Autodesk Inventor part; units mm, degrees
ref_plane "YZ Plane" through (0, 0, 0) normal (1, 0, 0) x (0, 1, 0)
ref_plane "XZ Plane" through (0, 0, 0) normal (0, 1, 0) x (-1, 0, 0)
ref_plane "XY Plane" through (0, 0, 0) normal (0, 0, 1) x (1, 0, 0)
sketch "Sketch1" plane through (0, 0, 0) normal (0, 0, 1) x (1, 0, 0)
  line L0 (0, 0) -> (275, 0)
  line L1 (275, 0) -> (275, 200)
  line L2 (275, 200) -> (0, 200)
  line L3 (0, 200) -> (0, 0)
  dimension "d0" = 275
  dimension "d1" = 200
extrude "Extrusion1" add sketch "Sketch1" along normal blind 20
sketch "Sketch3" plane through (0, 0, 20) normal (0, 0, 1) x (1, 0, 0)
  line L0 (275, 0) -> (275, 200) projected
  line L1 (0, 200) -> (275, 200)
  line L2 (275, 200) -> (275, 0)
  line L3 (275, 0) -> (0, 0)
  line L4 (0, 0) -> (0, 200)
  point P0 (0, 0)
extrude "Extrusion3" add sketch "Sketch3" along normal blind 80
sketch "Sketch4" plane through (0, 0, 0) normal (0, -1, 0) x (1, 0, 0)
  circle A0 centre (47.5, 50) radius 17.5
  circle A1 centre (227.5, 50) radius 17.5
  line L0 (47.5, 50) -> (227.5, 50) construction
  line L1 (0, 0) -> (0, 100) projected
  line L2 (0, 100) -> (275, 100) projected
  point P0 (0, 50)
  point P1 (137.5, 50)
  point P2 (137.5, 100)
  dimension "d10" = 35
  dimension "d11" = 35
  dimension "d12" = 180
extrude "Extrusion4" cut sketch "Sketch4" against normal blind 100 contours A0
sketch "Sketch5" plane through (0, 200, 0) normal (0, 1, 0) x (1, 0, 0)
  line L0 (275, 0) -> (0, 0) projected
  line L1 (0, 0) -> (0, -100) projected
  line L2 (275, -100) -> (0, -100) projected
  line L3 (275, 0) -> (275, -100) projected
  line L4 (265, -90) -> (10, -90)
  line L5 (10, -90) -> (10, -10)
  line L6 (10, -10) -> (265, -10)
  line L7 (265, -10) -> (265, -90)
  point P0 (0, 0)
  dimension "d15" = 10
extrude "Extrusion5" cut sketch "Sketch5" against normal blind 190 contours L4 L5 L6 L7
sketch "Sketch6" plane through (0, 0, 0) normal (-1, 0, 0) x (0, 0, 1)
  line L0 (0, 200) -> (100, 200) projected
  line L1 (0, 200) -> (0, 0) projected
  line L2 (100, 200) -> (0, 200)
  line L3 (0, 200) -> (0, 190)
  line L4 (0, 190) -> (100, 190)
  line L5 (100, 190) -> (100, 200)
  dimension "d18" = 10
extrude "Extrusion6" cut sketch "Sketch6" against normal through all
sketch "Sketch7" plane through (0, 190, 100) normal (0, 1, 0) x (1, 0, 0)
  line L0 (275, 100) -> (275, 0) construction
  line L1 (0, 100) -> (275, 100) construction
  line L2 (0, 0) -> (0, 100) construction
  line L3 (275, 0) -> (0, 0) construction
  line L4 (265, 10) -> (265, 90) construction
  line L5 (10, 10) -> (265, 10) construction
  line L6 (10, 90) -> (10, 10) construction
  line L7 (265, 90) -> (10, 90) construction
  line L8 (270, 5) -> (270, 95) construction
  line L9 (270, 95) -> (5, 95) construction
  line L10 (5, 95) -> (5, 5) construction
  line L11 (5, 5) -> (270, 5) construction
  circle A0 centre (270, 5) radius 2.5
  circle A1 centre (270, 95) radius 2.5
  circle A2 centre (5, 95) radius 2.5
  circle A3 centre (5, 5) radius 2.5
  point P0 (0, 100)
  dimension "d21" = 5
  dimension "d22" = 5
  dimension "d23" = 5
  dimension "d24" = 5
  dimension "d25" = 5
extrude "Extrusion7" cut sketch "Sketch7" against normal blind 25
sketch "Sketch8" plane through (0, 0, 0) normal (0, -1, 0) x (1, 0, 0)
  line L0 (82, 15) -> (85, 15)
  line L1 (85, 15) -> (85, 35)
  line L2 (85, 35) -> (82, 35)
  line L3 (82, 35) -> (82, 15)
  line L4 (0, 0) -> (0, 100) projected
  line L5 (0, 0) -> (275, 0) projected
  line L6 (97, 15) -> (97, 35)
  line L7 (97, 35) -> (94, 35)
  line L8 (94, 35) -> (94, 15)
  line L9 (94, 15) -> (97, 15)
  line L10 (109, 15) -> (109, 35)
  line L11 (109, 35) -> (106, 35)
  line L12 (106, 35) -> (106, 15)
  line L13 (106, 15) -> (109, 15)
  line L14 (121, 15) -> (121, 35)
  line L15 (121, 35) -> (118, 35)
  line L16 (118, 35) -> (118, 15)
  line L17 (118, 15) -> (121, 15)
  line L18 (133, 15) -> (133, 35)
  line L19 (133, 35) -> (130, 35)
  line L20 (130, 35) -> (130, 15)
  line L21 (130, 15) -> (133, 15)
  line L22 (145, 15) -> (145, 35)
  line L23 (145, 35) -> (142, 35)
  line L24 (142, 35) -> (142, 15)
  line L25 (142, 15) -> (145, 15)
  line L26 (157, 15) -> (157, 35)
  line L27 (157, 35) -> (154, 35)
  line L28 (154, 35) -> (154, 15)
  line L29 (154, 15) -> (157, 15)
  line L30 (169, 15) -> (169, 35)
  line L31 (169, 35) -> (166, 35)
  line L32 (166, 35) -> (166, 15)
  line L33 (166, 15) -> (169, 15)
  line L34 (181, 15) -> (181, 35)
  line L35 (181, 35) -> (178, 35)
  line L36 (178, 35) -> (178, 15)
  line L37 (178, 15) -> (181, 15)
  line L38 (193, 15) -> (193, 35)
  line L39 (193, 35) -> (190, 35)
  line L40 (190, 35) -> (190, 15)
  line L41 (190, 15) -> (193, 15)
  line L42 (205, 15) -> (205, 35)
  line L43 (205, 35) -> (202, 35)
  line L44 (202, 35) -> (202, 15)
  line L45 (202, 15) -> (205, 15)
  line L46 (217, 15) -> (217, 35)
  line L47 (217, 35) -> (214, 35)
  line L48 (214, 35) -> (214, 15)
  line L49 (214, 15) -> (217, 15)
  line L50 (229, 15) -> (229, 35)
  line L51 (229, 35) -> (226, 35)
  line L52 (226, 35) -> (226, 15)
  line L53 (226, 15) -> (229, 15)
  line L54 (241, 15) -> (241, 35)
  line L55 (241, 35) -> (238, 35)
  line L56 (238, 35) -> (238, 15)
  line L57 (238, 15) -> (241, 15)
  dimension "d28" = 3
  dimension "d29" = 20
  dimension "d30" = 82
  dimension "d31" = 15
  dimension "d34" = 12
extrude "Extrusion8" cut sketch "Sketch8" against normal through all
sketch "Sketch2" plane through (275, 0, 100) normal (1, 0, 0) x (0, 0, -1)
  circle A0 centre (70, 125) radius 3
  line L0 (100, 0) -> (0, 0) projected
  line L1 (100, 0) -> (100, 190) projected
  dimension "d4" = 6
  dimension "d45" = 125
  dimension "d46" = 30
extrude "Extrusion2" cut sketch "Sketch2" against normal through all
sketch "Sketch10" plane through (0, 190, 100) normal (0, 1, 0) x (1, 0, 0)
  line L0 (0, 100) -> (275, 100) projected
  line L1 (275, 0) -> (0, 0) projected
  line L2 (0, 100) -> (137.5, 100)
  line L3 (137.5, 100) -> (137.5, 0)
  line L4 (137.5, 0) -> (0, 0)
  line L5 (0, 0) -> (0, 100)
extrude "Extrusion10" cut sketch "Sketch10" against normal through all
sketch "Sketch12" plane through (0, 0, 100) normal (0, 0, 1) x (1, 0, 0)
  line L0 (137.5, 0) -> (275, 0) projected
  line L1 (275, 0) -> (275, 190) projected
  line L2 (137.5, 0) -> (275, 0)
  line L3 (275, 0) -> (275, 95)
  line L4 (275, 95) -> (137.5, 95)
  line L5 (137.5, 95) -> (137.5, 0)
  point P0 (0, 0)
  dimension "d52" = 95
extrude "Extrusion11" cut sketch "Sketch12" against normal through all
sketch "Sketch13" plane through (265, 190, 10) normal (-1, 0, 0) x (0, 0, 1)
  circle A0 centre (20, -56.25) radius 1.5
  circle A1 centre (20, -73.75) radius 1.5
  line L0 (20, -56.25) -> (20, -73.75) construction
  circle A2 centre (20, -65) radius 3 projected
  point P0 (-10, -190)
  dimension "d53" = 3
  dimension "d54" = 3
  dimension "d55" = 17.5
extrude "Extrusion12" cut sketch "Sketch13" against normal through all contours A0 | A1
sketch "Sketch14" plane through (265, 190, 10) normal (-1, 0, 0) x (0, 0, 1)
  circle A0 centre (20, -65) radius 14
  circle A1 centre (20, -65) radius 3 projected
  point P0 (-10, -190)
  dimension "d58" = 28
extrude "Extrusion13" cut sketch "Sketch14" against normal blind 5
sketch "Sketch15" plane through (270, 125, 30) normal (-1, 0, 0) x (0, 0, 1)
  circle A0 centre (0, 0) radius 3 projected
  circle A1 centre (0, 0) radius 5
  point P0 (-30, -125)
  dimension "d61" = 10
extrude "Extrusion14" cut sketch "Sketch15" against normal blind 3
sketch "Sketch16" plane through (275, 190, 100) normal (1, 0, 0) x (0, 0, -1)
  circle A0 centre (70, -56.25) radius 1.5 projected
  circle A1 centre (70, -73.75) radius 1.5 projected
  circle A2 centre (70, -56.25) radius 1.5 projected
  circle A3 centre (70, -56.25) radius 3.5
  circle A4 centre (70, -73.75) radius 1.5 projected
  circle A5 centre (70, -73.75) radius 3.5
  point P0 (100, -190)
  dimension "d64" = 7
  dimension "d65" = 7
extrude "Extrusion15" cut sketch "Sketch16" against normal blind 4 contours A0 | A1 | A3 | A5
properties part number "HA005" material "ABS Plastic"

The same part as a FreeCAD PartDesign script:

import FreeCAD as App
import Part
import Sketcher

V = App.Vector

doc = App.newDocument("Part")
body = doc.addObject("PartDesign::Body", "Body")

# Sketch on XY plane
sketch1 = body.newObject("Sketcher::SketchObject", "Sketch")
sketch1.AttachmentSupport = (doc.getObject("XY_Plane"), [""])
sketch1.MapMode = "FlatFace"
sketch1.addGeometry(Part.LineSegment(V(0, 200, 0), V(0, 0, 0)), False)
sketch1.addGeometry(Part.LineSegment(V(0, 0, 0), V(275, 0, 0)), False)
sketch1.addGeometry(Part.LineSegment(V(275, 0, 0), V(275, 200, 0)), False)
sketch1.addGeometry(Part.LineSegment(V(275, 200, 0), V(0, 200, 0)), False)
sketch1.addConstraint(Sketcher.Constraint("Coincident", 0, 2, 1, 1))
sketch1.addConstraint(Sketcher.Constraint("Coincident", 1, 2, 2, 1))
sketch1.addConstraint(Sketcher.Constraint("Coincident", 2, 2, 3, 1))
sketch1.addConstraint(Sketcher.Constraint("Coincident", 3, 2, 0, 1))
sketch1.addConstraint(Sketcher.Constraint("Vertical", 0))
sketch1.addConstraint(Sketcher.Constraint("Horizontal", 1))
sketch1.addConstraint(Sketcher.Constraint("Vertical", 2))
sketch1.addConstraint(Sketcher.Constraint("Horizontal", 3))
sketch1.addConstraint(Sketcher.Constraint("Coincident", 0, 2, -1, 1))
sketch1.addConstraint(Sketcher.Constraint("DistanceX", 1, 1, 1, 2, 275.0))
sketch1.addConstraint(Sketcher.Constraint("DistanceY", 0, 2, 0, 1, 200.0))
pad1 = body.newObject("PartDesign::Pad", "Pad")
pad1.Profile = sketch1
pad1.Length = 20

# Sketch on XY plane
sketch2 = body.newObject("Sketcher::SketchObject", "Sketch001")
sketch2.AttachmentSupport = (doc.getObject("XY_Plane"), [""])
sketch2.MapMode = "FlatFace"
sketch2.AttachmentOffset = App.Placement(V(0, 0, 20), App.Rotation())
sketch2.addGeometry(Part.LineSegment(V(0, 0, 0), V(275, 0, 0)), False)
sketch2.addGeometry(Part.LineSegment(V(275, 0, 0), V(275, 200, 0)), False)
sketch2.addGeometry(Part.LineSegment(V(275, 200, 0), V(0, 200, 0)), False)
sketch2.addGeometry(Part.LineSegment(V(0, 200, 0), V(0, 0, 0)), False)
sketch2.addConstraint(Sketcher.Constraint("Coincident", 0, 2, 1, 1))
sketch2.addConstraint(Sketcher.Constraint("Coincident", 1, 2, 2, 1))
sketch2.addConstraint(Sketcher.Constraint("Coincident", 2, 2, 3, 1))
sketch2.addConstraint(Sketcher.Constraint("Coincident", 3, 2, 0, 1))
sketch2.addConstraint(Sketcher.Constraint("Horizontal", 0))
sketch2.addConstraint(Sketcher.Constraint("Vertical", 1))
sketch2.addConstraint(Sketcher.Constraint("Horizontal", 2))
sketch2.addConstraint(Sketcher.Constraint("Vertical", 3))
sketch2.addConstraint(Sketcher.Constraint("Coincident", 3, 2, -1, 1))
sketch2.addConstraint(Sketcher.Constraint("DistanceX", 0, 1, 0, 2, 275.0))
sketch2.addConstraint(Sketcher.Constraint("DistanceY", 1, 1, 1, 2, 200.0))
pad2 = body.newObject("PartDesign::Pad", "Pad001")
pad2.Profile = sketch2
pad2.Length = 80

# Sketch on XZ plane
sketch3 = body.newObject("Sketcher::SketchObject", "Sketch002")
sketch3.AttachmentSupport = (doc.getObject("XZ_Plane"), [""])
sketch3.MapMode = "FlatFace"
sketch3.addGeometry(Part.Circle(V(48, 50, 0), V(0, 0, 1), 18), False)
sketch3.addConstraint(Sketcher.Constraint("Diameter", 0, 35.0))
sketch3.addConstraint(Sketcher.Constraint("DistanceY", -1, 1, 0, 3, 50.0))
sketch3.addConstraint(Sketcher.Constraint("DistanceX", -1, 1, 0, 3, 47.5))
pocket1 = body.newObject("PartDesign::Pocket", "Pocket")
pocket1.Profile = sketch3
pocket1.Length = 100

# Sketch on XZ plane
sketch4 = body.newObject("Sketcher::SketchObject", "Sketch003")
sketch4.AttachmentSupport = (doc.getObject("XZ_Plane"), [""])
sketch4.MapMode = "FlatFace"
sketch4.AttachmentOffset = App.Placement(V(0, 0, -200), App.Rotation())
sketch4.addGeometry(Part.LineSegment(V(10, 90, 0), V(265, 90, 0)), False)
sketch4.addGeometry(Part.LineSegment(V(265, 90, 0), V(265, 10, 0)), False)
sketch4.addGeometry(Part.LineSegment(V(265, 10, 0), V(10, 10, 0)), False)
sketch4.addGeometry(Part.LineSegment(V(10, 10, 0), V(10, 90, 0)), False)
sketch4.addConstraint(Sketcher.Constraint("Coincident", 0, 2, 1, 1))
sketch4.addConstraint(Sketcher.Constraint("Coincident", 1, 2, 2, 1))
sketch4.addConstraint(Sketcher.Constraint("Coincident", 2, 2, 3, 1))
sketch4.addConstraint(Sketcher.Constraint("Coincident", 3, 2, 0, 1))
sketch4.addConstraint(Sketcher.Constraint("Horizontal", 0))
sketch4.addConstraint(Sketcher.Constraint("Vertical", 1))
sketch4.addConstraint(Sketcher.Constraint("Horizontal", 2))
sketch4.addConstraint(Sketcher.Constraint("Vertical", 3))
sketch4.addConstraint(Sketcher.Constraint("DistanceY", -1, 1, 1, 2, 10.0))
sketch4.addConstraint(Sketcher.Constraint("DistanceX", -1, 1, 2, 2, 10.0))
sketch4.addConstraint(Sketcher.Constraint("DistanceX", 0, 1, 0, 2, 255.0))
sketch4.addConstraint(Sketcher.Constraint("DistanceY", 1, 2, 1, 1, 80.0))
pocket2 = body.newObject("PartDesign::Pocket", "Pocket001")
pocket2.Profile = sketch4
pocket2.Length = 190
pocket2.Reversed = True

# Sketch on YZ plane
sketch5 = body.newObject("Sketcher::SketchObject", "Sketch004")
sketch5.AttachmentSupport = (doc.getObject("YZ_Plane"), [""])
sketch5.MapMode = "FlatFace"
sketch5.addGeometry(Part.LineSegment(V(200, 100, 0), V(200, 0, 0)), False)
sketch5.addGeometry(Part.LineSegment(V(200, 0, 0), V(190, 0, 0)), False)
sketch5.addGeometry(Part.LineSegment(V(190, 0, 0), V(190, 100, 0)), False)
sketch5.addGeometry(Part.LineSegment(V(190, 100, 0), V(200, 100, 0)), False)
sketch5.addConstraint(Sketcher.Constraint("Coincident", 0, 2, 1, 1))
sketch5.addConstraint(Sketcher.Constraint("Coincident", 1, 2, 2, 1))
sketch5.addConstraint(Sketcher.Constraint("Coincident", 2, 2, 3, 1))
sketch5.addConstraint(Sketcher.Constraint("Coincident", 3, 2, 0, 1))
sketch5.addConstraint(Sketcher.Constraint("Vertical", 0))
sketch5.addConstraint(Sketcher.Constraint("Horizontal", 1))
sketch5.addConstraint(Sketcher.Constraint("Vertical", 2))
sketch5.addConstraint(Sketcher.Constraint("Horizontal", 3))
sketch5.addConstraint(Sketcher.Constraint("PointOnObject", 0, 2, -1))
sketch5.addConstraint(Sketcher.Constraint("DistanceX", 1, 2, 1, 1, 10.0))
sketch5.addConstraint(Sketcher.Constraint("DistanceY", 0, 2, 0, 1, 100.0))
sketch5.addConstraint(Sketcher.Constraint("DistanceX", -1, 1, 0, 2, 200.0))
pocket3 = body.newObject("PartDesign::Pocket", "Pocket002")
pocket3.Profile = sketch5
pocket3.Type = "ThroughAll"
pocket3.Reversed = True

# Sketch on XZ plane
sketch6 = body.newObject("Sketcher::SketchObject", "Sketch005")
sketch6.AttachmentSupport = (doc.getObject("XZ_Plane"), [""])
sketch6.MapMode = "FlatFace"
sketch6.AttachmentOffset = App.Placement(V(0, 0, -190), App.Rotation())
sketch6.addGeometry(Part.Circle(V(270, 95, 0), V(0, 0, 1), 2.5), False)
sketch6.addGeometry(Part.Circle(V(270, 5, 0), V(0, 0, 1), 2.5), False)
sketch6.addGeometry(Part.Circle(V(5, 5, 0), V(0, 0, 1), 2.5), False)
sketch6.addGeometry(Part.Circle(V(5, 95, 0), V(0, 0, 1), 2.5), False)
sketch6.addConstraint(Sketcher.Constraint("Equal", 0, 1))
sketch6.addConstraint(Sketcher.Constraint("Equal", 1, 2))
sketch6.addConstraint(Sketcher.Constraint("Equal", 2, 3))
sketch6.addConstraint(Sketcher.Constraint("Horizontal", 1, 3, 2, 3))
sketch6.addConstraint(Sketcher.Constraint("Horizontal", 0, 3, 3, 3))
sketch6.addConstraint(Sketcher.Constraint("Vertical", 0, 3, 1, 3))
sketch6.addConstraint(Sketcher.Constraint("Vertical", 2, 3, 3, 3))
sketch6.addConstraint(Sketcher.Constraint("Diameter", 0, 5.0))
sketch6.addConstraint(Sketcher.Constraint("DistanceY", -1, 1, 1, 3, 5.0))
sketch6.addConstraint(Sketcher.Constraint("DistanceX", -1, 1, 2, 3, 5.0))
sketch6.addConstraint(Sketcher.Constraint("DistanceX", -1, 1, 0, 3, 270.0))
sketch6.addConstraint(Sketcher.Constraint("DistanceY", -1, 1, 0, 3, 95.0))
pocket4 = body.newObject("PartDesign::Pocket", "Pocket003")
pocket4.Profile = sketch6
pocket4.Length = 25
pocket4.Reversed = True

# Sketch on XZ plane
sketch7 = body.newObject("Sketcher::SketchObject", "Sketch006")
sketch7.AttachmentSupport = (doc.getObject("XZ_Plane"), [""])
sketch7.MapMode = "FlatFace"
sketch7.addGeometry(Part.LineSegment(V(82, 35, 0), V(82, 15, 0)), False)
sketch7.addGeometry(Part.LineSegment(V(82, 15, 0), V(85, 15, 0)), False)
sketch7.addGeometry(Part.LineSegment(V(85, 15, 0), V(85, 35, 0)), False)
sketch7.addGeometry(Part.LineSegment(V(85, 35, 0), V(82, 35, 0)), False)
sketch7.addGeometry(Part.LineSegment(V(94, 15, 0), V(97, 15, 0)), False)
sketch7.addGeometry(Part.LineSegment(V(97, 15, 0), V(97, 35, 0)), False)
sketch7.addGeometry(Part.LineSegment(V(97, 35, 0), V(94, 35, 0)), False)
sketch7.addGeometry(Part.LineSegment(V(94, 35, 0), V(94, 15, 0)), False)
sketch7.addGeometry(Part.LineSegment(V(106, 15, 0), V(109, 15, 0)), False)
sketch7.addGeometry(Part.LineSegment(V(109, 15, 0), V(109, 35, 0)), False)
sketch7.addGeometry(Part.LineSegment(V(109, 35, 0), V(106, 35, 0)), False)
sketch7.addGeometry(Part.LineSegment(V(106, 35, 0), V(106, 15, 0)), False)
sketch7.addGeometry(Part.LineSegment(V(118, 15, 0), V(121, 15, 0)), False)
sketch7.addGeometry(Part.LineSegment(V(121, 15, 0), V(121, 35, 0)), False)
sketch7.addGeometry(Part.LineSegment(V(121, 35, 0), V(118, 35, 0)), False)
sketch7.addGeometry(Part.LineSegment(V(118, 35, 0), V(118, 15, 0)), False)
sketch7.addGeometry(Part.LineSegment(V(130, 15, 0), V(133, 15, 0)), False)
sketch7.addGeometry(Part.LineSegment(V(133, 15, 0), V(133, 35, 0)), False)
sketch7.addGeometry(Part.LineSegment(V(133, 35, 0), V(130, 35, 0)), False)
sketch7.addGeometry(Part.LineSegment(V(130, 35, 0), V(130, 15, 0)), False)
sketch7.addGeometry(Part.LineSegment(V(142, 15, 0), V(145, 15, 0)), False)
sketch7.addGeometry(Part.LineSegment(V(145, 15, 0), V(145, 35, 0)), False)
sketch7.addGeometry(Part.LineSegment(V(145, 35, 0), V(142, 35, 0)), False)
sketch7.addGeometry(Part.LineSegment(V(142, 35, 0), V(142, 15, 0)), False)
sketch7.addGeometry(Part.LineSegment(V(154, 15, 0), V(157, 15, 0)), False)
sketch7.addGeometry(Part.LineSegment(V(157, 15, 0), V(157, 35, 0)), False)
sketch7.addGeometry(Part.LineSegment(V(157, 35, 0), V(154, 35, 0)), False)
sketch7.addGeometry(Part.LineSegment(V(154, 35, 0), V(154, 15, 0)), False)
sketch7.addGeometry(Part.LineSegment(V(166, 15, 0), V(169, 15, 0)), False)
sketch7.addGeometry(Part.LineSegment(V(169, 15, 0), V(169, 35, 0)), False)
sketch7.addGeometry(Part.LineSegment(V(169, 35, 0), V(166, 35, 0)), False)
sketch7.addGeometry(Part.LineSegment(V(166, 35, 0), V(166, 15, 0)), False)
sketch7.addGeometry(Part.LineSegment(V(178, 15, 0), V(181, 15, 0)), False)
sketch7.addGeometry(Part.LineSegment(V(181, 15, 0), V(181, 35, 0)), False)
sketch7.addGeometry(Part.LineSegment(V(181, 35, 0), V(178, 35, 0)), False)
sketch7.addGeometry(Part.LineSegment(V(178, 35, 0), V(178, 15, 0)), False)
sketch7.addGeometry(Part.LineSegment(V(190, 15, 0), V(193, 15, 0)), False)
sketch7.addGeometry(Part.LineSegment(V(193, 15, 0), V(193, 35, 0)), False)
sketch7.addGeometry(Part.LineSegment(V(193, 35, 0), V(190, 35, 0)), False)
sketch7.addGeometry(Part.LineSegment(V(190, 35, 0), V(190, 15, 0)), False)
sketch7.addGeometry(Part.LineSegment(V(202, 15, 0), V(205, 15, 0)), False)
sketch7.addGeometry(Part.LineSegment(V(205, 15, 0), V(205, 35, 0)), False)
sketch7.addGeometry(Part.LineSegment(V(205, 35, 0), V(202, 35, 0)), False)
sketch7.addGeometry(Part.LineSegment(V(202, 35, 0), V(202, 15, 0)), False)
sketch7.addGeometry(Part.LineSegment(V(214, 15, 0), V(217, 15, 0)), False)
sketch7.addGeometry(Part.LineSegment(V(217, 15, 0), V(217, 35, 0)), False)
sketch7.addGeometry(Part.LineSegment(V(217, 35, 0), V(214, 35, 0)), False)
sketch7.addGeometry(Part.LineSegment(V(214, 35, 0), V(214, 15, 0)), False)
sketch7.addGeometry(Part.LineSegment(V(226, 15, 0), V(229, 15, 0)), False)
sketch7.addGeometry(Part.LineSegment(V(229, 15, 0), V(229, 35, 0)), False)
sketch7.addGeometry(Part.LineSegment(V(229, 35, 0), V(226, 35, 0)), False)
sketch7.addGeometry(Part.LineSegment(V(226, 35, 0), V(226, 15, 0)), False)
sketch7.addGeometry(Part.LineSegment(V(238, 15, 0), V(241, 15, 0)), False)
sketch7.addGeometry(Part.LineSegment(V(241, 15, 0), V(241, 35, 0)), False)
sketch7.addGeometry(Part.LineSegment(V(241, 35, 0), V(238, 35, 0)), False)
sketch7.addGeometry(Part.LineSegment(V(238, 35, 0), V(238, 15, 0)), False)
sketch7.addConstraint(Sketcher.Constraint("Coincident", 0, 2, 1, 1))
sketch7.addConstraint(Sketcher.Constraint("Coincident", 1, 2, 2, 1))
sketch7.addConstraint(Sketcher.Constraint("Coincident", 2, 2, 3, 1))
sketch7.addConstraint(Sketcher.Constraint("Coincident", 3, 2, 0, 1))
sketch7.addConstraint(Sketcher.Constraint("Coincident", 4, 2, 5, 1))
sketch7.addConstraint(Sketcher.Constraint("Coincident", 5, 2, 6, 1))
sketch7.addConstraint(Sketcher.Constraint("Coincident", 6, 2, 7, 1))
sketch7.addConstraint(Sketcher.Constraint("Coincident", 7, 2, 4, 1))
sketch7.addConstraint(Sketcher.Constraint("Coincident", 8, 2, 9, 1))
sketch7.addConstraint(Sketcher.Constraint("Coincident", 9, 2, 10, 1))
sketch7.addConstraint(Sketcher.Constraint("Coincident", 10, 2, 11, 1))
sketch7.addConstraint(Sketcher.Constraint("Coincident", 11, 2, 8, 1))
sketch7.addConstraint(Sketcher.Constraint("Coincident", 12, 2, 13, 1))
sketch7.addConstraint(Sketcher.Constraint("Coincident", 13, 2, 14, 1))
sketch7.addConstraint(Sketcher.Constraint("Coincident", 14, 2, 15, 1))
sketch7.addConstraint(Sketcher.Constraint("Coincident", 15, 2, 12, 1))
sketch7.addConstraint(Sketcher.Constraint("Coincident", 16, 2, 17, 1))
sketch7.addConstraint(Sketcher.Constraint("Coincident", 17, 2, 18, 1))
sketch7.addConstraint(Sketcher.Constraint("Coincident", 18, 2, 19, 1))
sketch7.addConstraint(Sketcher.Constraint("Coincident", 19, 2, 16, 1))
sketch7.addConstraint(Sketcher.Constraint("Coincident", 20, 2, 21, 1))
sketch7.addConstraint(Sketcher.Constraint("Coincident", 21, 2, 22, 1))
sketch7.addConstraint(Sketcher.Constraint("Coincident", 22, 2, 23, 1))
sketch7.addConstraint(Sketcher.Constraint("Coincident", 23, 2, 20, 1))
sketch7.addConstraint(Sketcher.Constraint("Coincident", 24, 2, 25, 1))
sketch7.addConstraint(Sketcher.Constraint("Coincident", 25, 2, 26, 1))
sketch7.addConstraint(Sketcher.Constraint("Coincident", 26, 2, 27, 1))
sketch7.addConstraint(Sketcher.Constraint("Coincident", 27, 2, 24, 1))
sketch7.addConstraint(Sketcher.Constraint("Coincident", 28, 2, 29, 1))
sketch7.addConstraint(Sketcher.Constraint("Coincident", 29, 2, 30, 1))
sketch7.addConstraint(Sketcher.Constraint("Coincident", 30, 2, 31, 1))
sketch7.addConstraint(Sketcher.Constraint("Coincident", 31, 2, 28, 1))
sketch7.addConstraint(Sketcher.Constraint("Coincident", 32, 2, 33, 1))
sketch7.addConstraint(Sketcher.Constraint("Coincident", 33, 2, 34, 1))
sketch7.addConstraint(Sketcher.Constraint("Coincident", 34, 2, 35, 1))
sketch7.addConstraint(Sketcher.Constraint("Coincident", 35, 2, 32, 1))
sketch7.addConstraint(Sketcher.Constraint("Coincident", 36, 2, 37, 1))
sketch7.addConstraint(Sketcher.Constraint("Coincident", 37, 2, 38, 1))
sketch7.addConstraint(Sketcher.Constraint("Coincident", 38, 2, 39, 1))
sketch7.addConstraint(Sketcher.Constraint("Coincident", 39, 2, 36, 1))
sketch7.addConstraint(Sketcher.Constraint("Coincident", 40, 2, 41, 1))
sketch7.addConstraint(Sketcher.Constraint("Coincident", 41, 2, 42, 1))
sketch7.addConstraint(Sketcher.Constraint("Coincident", 42, 2, 43, 1))
sketch7.addConstraint(Sketcher.Constraint("Coincident", 43, 2, 40, 1))
sketch7.addConstraint(Sketcher.Constraint("Coincident", 44, 2, 45, 1))
sketch7.addConstraint(Sketcher.Constraint("Coincident", 45, 2, 46, 1))
sketch7.addConstraint(Sketcher.Constraint("Coincident", 46, 2, 47, 1))
sketch7.addConstraint(Sketcher.Constraint("Coincident", 47, 2, 44, 1))
sketch7.addConstraint(Sketcher.Constraint("Coincident", 48, 2, 49, 1))
sketch7.addConstraint(Sketcher.Constraint("Coincident", 49, 2, 50, 1))
sketch7.addConstraint(Sketcher.Constraint("Coincident", 50, 2, 51, 1))
sketch7.addConstraint(Sketcher.Constraint("Coincident", 51, 2, 48, 1))
sketch7.addConstraint(Sketcher.Constraint("Coincident", 52, 2, 53, 1))
sketch7.addConstraint(Sketcher.Constraint("Coincident", 53, 2, 54, 1))
sketch7.addConstraint(Sketcher.Constraint("Coincident", 54, 2, 55, 1))
sketch7.addConstraint(Sketcher.Constraint("Coincident", 55, 2, 52, 1))
sketch7.addConstraint(Sketcher.Constraint("Vertical", 0))
sketch7.addConstraint(Sketcher.Constraint("Horizontal", 1))
sketch7.addConstraint(Sketcher.Constraint("Vertical", 2))
sketch7.addConstraint(Sketcher.Constraint("Horizontal", 3))
sketch7.addConstraint(Sketcher.Constraint("Horizontal", 4))
sketch7.addConstraint(Sketcher.Constraint("Vertical", 5))
sketch7.addConstraint(Sketcher.Constraint("Horizontal", 6))
sketch7.addConstraint(Sketcher.Constraint("Vertical", 7))
sketch7.addConstraint(Sketcher.Constraint("Horizontal", 8))
sketch7.addConstraint(Sketcher.Constraint("Vertical", 9))
sketch7.addConstraint(Sketcher.Constraint("Horizontal", 10))
sketch7.addConstraint(Sketcher.Constraint("Vertical", 11))
sketch7.addConstraint(Sketcher.Constraint("Horizontal", 12))
sketch7.addConstraint(Sketcher.Constraint("Vertical", 13))
sketch7.addConstraint(Sketcher.Constraint("Horizontal", 14))
sketch7.addConstraint(Sketcher.Constraint("Vertical", 15))
sketch7.addConstraint(Sketcher.Constraint("Horizontal", 16))
sketch7.addConstraint(Sketcher.Constraint("Vertical", 17))
sketch7.addConstraint(Sketcher.Constraint("Horizontal", 18))
sketch7.addConstraint(Sketcher.Constraint("Vertical", 19))
sketch7.addConstraint(Sketcher.Constraint("Horizontal", 20))
sketch7.addConstraint(Sketcher.Constraint("Vertical", 21))
sketch7.addConstraint(Sketcher.Constraint("Horizontal", 22))
sketch7.addConstraint(Sketcher.Constraint("Vertical", 23))
sketch7.addConstraint(Sketcher.Constraint("Horizontal", 24))
sketch7.addConstraint(Sketcher.Constraint("Vertical", 25))
sketch7.addConstraint(Sketcher.Constraint("Horizontal", 26))
sketch7.addConstraint(Sketcher.Constraint("Vertical", 27))
sketch7.addConstraint(Sketcher.Constraint("Horizontal", 28))
sketch7.addConstraint(Sketcher.Constraint("Vertical", 29))
sketch7.addConstraint(Sketcher.Constraint("Horizontal", 30))
sketch7.addConstraint(Sketcher.Constraint("Vertical", 31))
sketch7.addConstraint(Sketcher.Constraint("Horizontal", 32))
sketch7.addConstraint(Sketcher.Constraint("Vertical", 33))
sketch7.addConstraint(Sketcher.Constraint("Horizontal", 34))
sketch7.addConstraint(Sketcher.Constraint("Vertical", 35))
sketch7.addConstraint(Sketcher.Constraint("Horizontal", 36))
sketch7.addConstraint(Sketcher.Constraint("Vertical", 37))
sketch7.addConstraint(Sketcher.Constraint("Horizontal", 38))
sketch7.addConstraint(Sketcher.Constraint("Vertical", 39))
sketch7.addConstraint(Sketcher.Constraint("Horizontal", 40))
sketch7.addConstraint(Sketcher.Constraint("Vertical", 41))
sketch7.addConstraint(Sketcher.Constraint("Horizontal", 42))
sketch7.addConstraint(Sketcher.Constraint("Vertical", 43))
sketch7.addConstraint(Sketcher.Constraint("Horizontal", 44))
sketch7.addConstraint(Sketcher.Constraint("Vertical", 45))
sketch7.addConstraint(Sketcher.Constraint("Horizontal", 46))
sketch7.addConstraint(Sketcher.Constraint("Vertical", 47))
sketch7.addConstraint(Sketcher.Constraint("Horizontal", 48))
sketch7.addConstraint(Sketcher.Constraint("Vertical", 49))
sketch7.addConstraint(Sketcher.Constraint("Horizontal", 50))
sketch7.addConstraint(Sketcher.Constraint("Vertical", 51))
sketch7.addConstraint(Sketcher.Constraint("Horizontal", 52))
sketch7.addConstraint(Sketcher.Constraint("Vertical", 53))
sketch7.addConstraint(Sketcher.Constraint("Horizontal", 54))
sketch7.addConstraint(Sketcher.Constraint("Vertical", 55))
sketch7.addConstraint(Sketcher.Constraint("Horizontal", 1, 2, 4, 2))
sketch7.addConstraint(Sketcher.Constraint("Horizontal", 3, 2, 5, 2))
sketch7.addConstraint(Sketcher.Constraint("Horizontal", 7, 2, 8, 2))
sketch7.addConstraint(Sketcher.Constraint("Horizontal", 6, 2, 9, 2))
sketch7.addConstraint(Sketcher.Constraint("Horizontal", 11, 2, 12, 2))
sketch7.addConstraint(Sketcher.Constraint("Horizontal", 10, 2, 13, 2))
sketch7.addConstraint(Sketcher.Constraint("Horizontal", 15, 2, 16, 2))
sketch7.addConstraint(Sketcher.Constraint("Horizontal", 14, 2, 17, 2))
sketch7.addConstraint(Sketcher.Constraint("Horizontal", 19, 2, 20, 2))
sketch7.addConstraint(Sketcher.Constraint("Horizontal", 18, 2, 21, 2))
sketch7.addConstraint(Sketcher.Constraint("Horizontal", 23, 2, 24, 2))
sketch7.addConstraint(Sketcher.Constraint("Horizontal", 22, 2, 25, 2))
sketch7.addConstraint(Sketcher.Constraint("Horizontal", 27, 2, 28, 2))
sketch7.addConstraint(Sketcher.Constraint("Horizontal", 26, 2, 29, 2))
sketch7.addConstraint(Sketcher.Constraint("Horizontal", 31, 2, 32, 2))
sketch7.addConstraint(Sketcher.Constraint("Horizontal", 30, 2, 33, 2))
sketch7.addConstraint(Sketcher.Constraint("Horizontal", 35, 2, 36, 2))
sketch7.addConstraint(Sketcher.Constraint("Horizontal", 34, 2, 37, 2))
sketch7.addConstraint(Sketcher.Constraint("Horizontal", 39, 2, 40, 2))
sketch7.addConstraint(Sketcher.Constraint("Horizontal", 38, 2, 41, 2))
sketch7.addConstraint(Sketcher.Constraint("Horizontal", 43, 2, 44, 2))
sketch7.addConstraint(Sketcher.Constraint("Horizontal", 42, 2, 45, 2))
sketch7.addConstraint(Sketcher.Constraint("Horizontal", 47, 2, 48, 2))
sketch7.addConstraint(Sketcher.Constraint("Horizontal", 46, 2, 49, 2))
sketch7.addConstraint(Sketcher.Constraint("Horizontal", 51, 2, 52, 2))
sketch7.addConstraint(Sketcher.Constraint("Horizontal", 50, 2, 53, 2))
sketch7.addConstraint(Sketcher.Constraint("Equal", 3, 4))
sketch7.addConstraint(Sketcher.Constraint("Equal", 6, 8))
sketch7.addConstraint(Sketcher.Constraint("Equal", 10, 12))
sketch7.addConstraint(Sketcher.Constraint("Equal", 14, 16))
sketch7.addConstraint(Sketcher.Constraint("Equal", 18, 20))
sketch7.addConstraint(Sketcher.Constraint("Equal", 22, 24))
sketch7.addConstraint(Sketcher.Constraint("Equal", 26, 28))
sketch7.addConstraint(Sketcher.Constraint("Equal", 30, 32))
sketch7.addConstraint(Sketcher.Constraint("Equal", 34, 36))
sketch7.addConstraint(Sketcher.Constraint("Equal", 38, 40))
sketch7.addConstraint(Sketcher.Constraint("Equal", 42, 44))
sketch7.addConstraint(Sketcher.Constraint("Equal", 46, 48))
sketch7.addConstraint(Sketcher.Constraint("Equal", 50, 52))
sketch7.addConstraint(Sketcher.Constraint("DistanceX", 1, 1, 1, 2, 3.0))
sketch7.addConstraint(Sketcher.Constraint("DistanceY", 0, 2, 0, 1, 20.0))
sketch7.addConstraint(Sketcher.Constraint("DistanceX", -1, 1, 0, 2, 82.0))
sketch7.addConstraint(Sketcher.Constraint("DistanceY", -1, 1, 0, 2, 15.0))
sketch7.addConstraint(Sketcher.Constraint("DistanceX", 1, 2, 4, 2, 12.0))
sketch7.addConstraint(Sketcher.Constraint("DistanceX", 4, 2, 8, 2, 12.0))
sketch7.addConstraint(Sketcher.Constraint("DistanceX", 8, 2, 12, 2, 12.0))
sketch7.addConstraint(Sketcher.Constraint("DistanceX", 12, 2, 16, 2, 12.0))
sketch7.addConstraint(Sketcher.Constraint("DistanceX", 16, 2, 20, 2, 12.0))
sketch7.addConstraint(Sketcher.Constraint("DistanceX", 20, 2, 24, 2, 12.0))
sketch7.addConstraint(Sketcher.Constraint("DistanceX", 24, 2, 28, 2, 12.0))
sketch7.addConstraint(Sketcher.Constraint("DistanceX", 28, 2, 32, 2, 12.0))
sketch7.addConstraint(Sketcher.Constraint("DistanceX", 32, 2, 36, 2, 12.0))
sketch7.addConstraint(Sketcher.Constraint("DistanceX", 36, 2, 40, 2, 12.0))
sketch7.addConstraint(Sketcher.Constraint("DistanceX", 40, 2, 44, 2, 12.0))
sketch7.addConstraint(Sketcher.Constraint("DistanceX", 44, 2, 48, 2, 12.0))
sketch7.addConstraint(Sketcher.Constraint("DistanceX", 48, 2, 52, 2, 12.0))
pocket5 = body.newObject("PartDesign::Pocket", "Pocket004")
pocket5.Profile = sketch7
pocket5.Type = "ThroughAll"

# Sketch on YZ plane
sketch8 = body.newObject("Sketcher::SketchObject", "Sketch007")
sketch8.AttachmentSupport = (doc.getObject("YZ_Plane"), [""])
sketch8.MapMode = "FlatFace"
sketch8.AttachmentOffset = App.Placement(V(0, 0, 275), App.Rotation())
sketch8.addGeometry(Part.Circle(V(125, 30, 0), V(0, 0, 1), 3), False)
sketch8.addConstraint(Sketcher.Constraint("Diameter", 0, 6.0))
sketch8.addConstraint(Sketcher.Constraint("DistanceX", -1, 1, 0, 3, 125.0))
sketch8.addConstraint(Sketcher.Constraint("DistanceY", -1, 1, 0, 3, 30.0))
pocket6 = body.newObject("PartDesign::Pocket", "Pocket005")
pocket6.Profile = sketch8
pocket6.Type = "ThroughAll"

# Sketch on XZ plane
sketch9 = body.newObject("Sketcher::SketchObject", "Sketch008")
sketch9.AttachmentSupport = (doc.getObject("XZ_Plane"), [""])
sketch9.MapMode = "FlatFace"
sketch9.AttachmentOffset = App.Placement(V(0, 0, -190), App.Rotation())
sketch9.addGeometry(Part.LineSegment(V(138, 0, 0), V(0, 0, 0)), False)
sketch9.addGeometry(Part.LineSegment(V(0, 0, 0), V(0, 100, 0)), False)
sketch9.addGeometry(Part.LineSegment(V(0, 100, 0), V(138, 100, 0)), False)
sketch9.addGeometry(Part.LineSegment(V(138, 100, 0), V(138, 0, 0)), False)
sketch9.addConstraint(Sketcher.Constraint("Coincident", 0, 2, 1, 1))
sketch9.addConstraint(Sketcher.Constraint("Coincident", 1, 2, 2, 1))
sketch9.addConstraint(Sketcher.Constraint("Coincident", 2, 2, 3, 1))
sketch9.addConstraint(Sketcher.Constraint("Coincident", 3, 2, 0, 1))
sketch9.addConstraint(Sketcher.Constraint("Horizontal", 0))
sketch9.addConstraint(Sketcher.Constraint("Vertical", 1))
sketch9.addConstraint(Sketcher.Constraint("Horizontal", 2))
sketch9.addConstraint(Sketcher.Constraint("Vertical", 3))
sketch9.addConstraint(Sketcher.Constraint("Coincident", 0, 2, -1, 1))
sketch9.addConstraint(Sketcher.Constraint("DistanceY", 1, 1, 1, 2, 100.0))
sketch9.addConstraint(Sketcher.Constraint("DistanceX", 0, 2, 0, 1, 137.5))
pocket7 = body.newObject("PartDesign::Pocket", "Pocket006")
pocket7.Profile = sketch9
pocket7.Type = "ThroughAll"
pocket7.Reversed = True

# Sketch on XY plane
sketch10 = body.newObject("Sketcher::SketchObject", "Sketch009")
sketch10.AttachmentSupport = (doc.getObject("XY_Plane"), [""])
sketch10.MapMode = "FlatFace"
sketch10.AttachmentOffset = App.Placement(V(0, 0, 100), App.Rotation())
sketch10.addGeometry(Part.LineSegment(V(138, 95, 0), V(138, 0, 0)), False)
sketch10.addGeometry(Part.LineSegment(V(138, 0, 0), V(275, 0, 0)), False)
sketch10.addGeometry(Part.LineSegment(V(275, 0, 0), V(275, 95, 0)), False)
sketch10.addGeometry(Part.LineSegment(V(275, 95, 0), V(138, 95, 0)), False)
sketch10.addConstraint(Sketcher.Constraint("Coincident", 0, 2, 1, 1))
sketch10.addConstraint(Sketcher.Constraint("Coincident", 1, 2, 2, 1))
sketch10.addConstraint(Sketcher.Constraint("Coincident", 2, 2, 3, 1))
sketch10.addConstraint(Sketcher.Constraint("Coincident", 3, 2, 0, 1))
sketch10.addConstraint(Sketcher.Constraint("Vertical", 0))
sketch10.addConstraint(Sketcher.Constraint("Horizontal", 1))
sketch10.addConstraint(Sketcher.Constraint("Vertical", 2))
sketch10.addConstraint(Sketcher.Constraint("Horizontal", 3))
sketch10.addConstraint(Sketcher.Constraint("PointOnObject", 0, 2, -1))
sketch10.addConstraint(Sketcher.Constraint("DistanceY", 0, 2, 0, 1, 95.0))
sketch10.addConstraint(Sketcher.Constraint("DistanceX", 1, 1, 1, 2, 137.5))
sketch10.addConstraint(Sketcher.Constraint("DistanceX", -1, 1, 1, 2, 275.0))
pocket8 = body.newObject("PartDesign::Pocket", "Pocket007")
pocket8.Profile = sketch10
pocket8.Type = "ThroughAll"

# Sketch on YZ plane
sketch11 = body.newObject("Sketcher::SketchObject", "Sketch010")
sketch11.AttachmentSupport = (doc.getObject("YZ_Plane"), [""])
sketch11.MapMode = "FlatFace"
sketch11.AttachmentOffset = App.Placement(V(0, 0, 265), App.Rotation())
sketch11.addGeometry(Part.Circle(V(133.8, 30, 0), V(0, 0, 1), 1.5), False)
sketch11.addGeometry(Part.Circle(V(116.2, 30, 0), V(0, 0, 1), 1.5), False)
sketch11.addConstraint(Sketcher.Constraint("Equal", 0, 1))
sketch11.addConstraint(Sketcher.Constraint("Horizontal", 0, 3, 1, 3))
sketch11.addConstraint(Sketcher.Constraint("Diameter", 0, 3.0))
sketch11.addConstraint(Sketcher.Constraint("DistanceX", 1, 3, 0, 3, 17.5))
sketch11.addConstraint(Sketcher.Constraint("DistanceY", -1, 1, 0, 3, 30.0))
sketch11.addConstraint(Sketcher.Constraint("DistanceX", -1, 1, 0, 3, 133.75))
pocket9 = body.newObject("PartDesign::Pocket", "Pocket008")
pocket9.Profile = sketch11
pocket9.Type = "ThroughAll"
pocket9.Reversed = True

# Sketch on YZ plane
sketch12 = body.newObject("Sketcher::SketchObject", "Sketch011")
sketch12.AttachmentSupport = (doc.getObject("YZ_Plane"), [""])
sketch12.MapMode = "FlatFace"
sketch12.AttachmentOffset = App.Placement(V(0, 0, 265), App.Rotation())
sketch12.addGeometry(Part.Circle(V(125, 30, 0), V(0, 0, 1), 14), False)
sketch12.addGeometry(Part.Circle(V(125, 30, 0), V(0, 0, 1), 3), False)
sketch12.addConstraint(Sketcher.Constraint("Coincident", 1, 3, 0, 3))
sketch12.addConstraint(Sketcher.Constraint("Diameter", 0, 28.0))
sketch12.addConstraint(Sketcher.Constraint("Diameter", 1, 6.0))
sketch12.addConstraint(Sketcher.Constraint("DistanceX", -1, 1, 0, 3, 125.0))
sketch12.addConstraint(Sketcher.Constraint("DistanceY", -1, 1, 0, 3, 30.0))
pocket10 = body.newObject("PartDesign::Pocket", "Pocket009")
pocket10.Profile = sketch12
pocket10.Length = 5
pocket10.Reversed = True

# Sketch on YZ plane
sketch13 = body.newObject("Sketcher::SketchObject", "Sketch012")
sketch13.AttachmentSupport = (doc.getObject("YZ_Plane"), [""])
sketch13.MapMode = "FlatFace"
sketch13.AttachmentOffset = App.Placement(V(0, 0, 270), App.Rotation())
sketch13.addGeometry(Part.Circle(V(125, 30, 0), V(0, 0, 1), 5), False)
sketch13.addGeometry(Part.Circle(V(125, 30, 0), V(0, 0, 1), 3), False)
sketch13.addConstraint(Sketcher.Constraint("Coincident", 1, 3, 0, 3))
sketch13.addConstraint(Sketcher.Constraint("Diameter", 0, 10.0))
sketch13.addConstraint(Sketcher.Constraint("Diameter", 1, 6.0))
sketch13.addConstraint(Sketcher.Constraint("DistanceX", -1, 1, 0, 3, 125.0))
sketch13.addConstraint(Sketcher.Constraint("DistanceY", -1, 1, 0, 3, 30.0))
pocket11 = body.newObject("PartDesign::Pocket", "Pocket010")
pocket11.Profile = sketch13
pocket11.Length = 3
pocket11.Reversed = True

# Sketch on YZ plane
sketch14 = body.newObject("Sketcher::SketchObject", "Sketch013")
sketch14.AttachmentSupport = (doc.getObject("YZ_Plane"), [""])
sketch14.MapMode = "FlatFace"
sketch14.AttachmentOffset = App.Placement(V(0, 0, 275), App.Rotation())
sketch14.addGeometry(Part.Circle(V(133.8, 30, 0), V(0, 0, 1), 3.5), False)
sketch14.addGeometry(Part.Circle(V(116.2, 30, 0), V(0, 0, 1), 3.5), False)
sketch14.addConstraint(Sketcher.Constraint("Equal", 0, 1))
sketch14.addConstraint(Sketcher.Constraint("Horizontal", 0, 3, 1, 3))
sketch14.addConstraint(Sketcher.Constraint("Diameter", 0, 7.0))
sketch14.addConstraint(Sketcher.Constraint("DistanceY", -1, 1, 0, 3, 30.0))
sketch14.addConstraint(Sketcher.Constraint("DistanceX", 1, 3, 0, 3, 17.5))
sketch14.addConstraint(Sketcher.Constraint("DistanceX", -1, 1, 0, 3, 133.75))
pocket12 = body.newObject("PartDesign::Pocket", "Pocket011")
pocket12.Profile = sketch14
pocket12.Length = 4

doc.recompute()
